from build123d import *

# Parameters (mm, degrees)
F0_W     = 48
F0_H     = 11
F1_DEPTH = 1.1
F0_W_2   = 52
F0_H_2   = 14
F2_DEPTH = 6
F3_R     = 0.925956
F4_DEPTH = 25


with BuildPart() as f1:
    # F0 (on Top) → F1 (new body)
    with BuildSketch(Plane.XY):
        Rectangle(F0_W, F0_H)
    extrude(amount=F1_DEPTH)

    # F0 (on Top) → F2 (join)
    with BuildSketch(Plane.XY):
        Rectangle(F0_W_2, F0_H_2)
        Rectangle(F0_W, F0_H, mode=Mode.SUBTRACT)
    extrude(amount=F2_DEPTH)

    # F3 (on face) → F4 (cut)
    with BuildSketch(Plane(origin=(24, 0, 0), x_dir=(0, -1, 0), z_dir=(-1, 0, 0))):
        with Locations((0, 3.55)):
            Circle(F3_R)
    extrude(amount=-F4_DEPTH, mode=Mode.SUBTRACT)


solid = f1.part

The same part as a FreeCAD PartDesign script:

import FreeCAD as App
import Part
import Sketcher
from FreeCAD import Vector
Q = App.Units.Quantity


def add_polygon(sketch, points):
    """Adds a closed chain of lines whose ends are joined by coincident constraints."""
    first, n = sketch.GeometryCount, len(points)
    for a, b in zip(points, points[1:] + points[:1]):
        sketch.addGeometry(Part.LineSegment(App.Vector(*a, 0), App.Vector(*b, 0)), False)
    for i in range(n):
        sketch.addConstraint(Sketcher.Constraint("Coincident", first + i, 2, first + (i + 1) % n, 1))

doc = App.newDocument("Part")
body = doc.addObject("PartDesign::Body", "Body")

# Sketch on XY plane
sketch1 = body.newObject("Sketcher::SketchObject", "Sketch")
sketch1.AttachmentSupport = (doc.getObject("XY_Plane"), [""])
sketch1.MapMode = "FlatFace"
add_polygon(sketch1, [(-24, 6), (-24, -6), (24, -6), (24, 6)])  # lines 0-3
sketch1.addConstraint([
    Sketcher.Constraint("Vertical", 0),
    Sketcher.Constraint("Horizontal", 1),
    Sketcher.Constraint("Vertical", 2),
    Sketcher.Constraint("Horizontal", 3),
    Sketcher.Constraint("Symmetric", 0, 2, 2, 2, -1, 1),
    Sketcher.Constraint("DistanceX", 1, 1, 1, 2, Q("48 mm")),
    Sketcher.Constraint("DistanceY", 0, 2, 0, 1, Q("11 mm")),
])
pad1 = body.newObject("PartDesign::Pad", "Pad")
pad1.Profile = sketch1
pad1.Length = 1.1

# Sketch on XY plane
sketch2 = body.newObject("Sketcher::SketchObject", "Sketch001")
sketch2.AttachmentSupport = (doc.getObject("XY_Plane"), [""])
sketch2.MapMode = "FlatFace"
add_polygon(sketch2, [(-26, 7), (-26, -7), (26, -7), (26, 7)])  # lines 0-3
add_polygon(sketch2, [(24, -6), (-24, -6), (-24, 6), (24, 6)])  # lines 4-7
sketch2.addConstraint([
    Sketcher.Constraint("Vertical", 0),
    Sketcher.Constraint("Horizontal", 1),
    Sketcher.Constraint("Vertical", 2),
    Sketcher.Constraint("Horizontal", 3),
    Sketcher.Constraint("Horizontal", 4),
    Sketcher.Constraint("Vertical", 5),
    Sketcher.Constraint("Horizontal", 6),
    Sketcher.Constraint("Vertical", 7),
    Sketcher.Constraint("Symmetric", 0, 2, 2, 2, -1, 1),
    Sketcher.Constraint("Symmetric", 4, 2, 6, 2, -1, 1),
    Sketcher.Constraint("DistanceX", 1, 1, 1, 2, Q("52 mm")),
    Sketcher.Constraint("DistanceX", 4, 2, 4, 1, Q("48 mm")),
    Sketcher.Constraint("DistanceY", 0, 2, 0, 1, Q("14 mm")),
    Sketcher.Constraint("DistanceY", 5, 1, 5, 2, Q("11 mm")),
])
pad2 = body.newObject("PartDesign::Pad", "Pad001")
pad2.Profile = sketch2
pad2.Length = 6

# Sketch on YZ plane
sketch3 = body.newObject("Sketcher::SketchObject", "Sketch002")
sketch3.AttachmentSupport = (doc.getObject("YZ_Plane"), [""])
sketch3.MapMode = "FlatFace"
sketch3.AttachmentOffset = App.Placement(Vector(0, 0, 24), App.Rotation())
sketch3.addGeometry(Part.Circle(Vector(0, 3.5, 0), Vector(0, 0, 1), 0.9), False)
sketch3.addConstraint([
    Sketcher.Constraint("PointOnObject", 0, 3, -2),
    Sketcher.Constraint("DistanceY", -1, 1, 0, 3, Q("3.55 mm")),
    Sketcher.Constraint("Diameter", 0, Q("1.851912 mm")),
])
pocket1 = body.newObject("PartDesign::Pocket", "Pocket")
pocket1.Profile = sketch3
pocket1.Length = 25
pocket1.Reversed = True

doc.recompute()
